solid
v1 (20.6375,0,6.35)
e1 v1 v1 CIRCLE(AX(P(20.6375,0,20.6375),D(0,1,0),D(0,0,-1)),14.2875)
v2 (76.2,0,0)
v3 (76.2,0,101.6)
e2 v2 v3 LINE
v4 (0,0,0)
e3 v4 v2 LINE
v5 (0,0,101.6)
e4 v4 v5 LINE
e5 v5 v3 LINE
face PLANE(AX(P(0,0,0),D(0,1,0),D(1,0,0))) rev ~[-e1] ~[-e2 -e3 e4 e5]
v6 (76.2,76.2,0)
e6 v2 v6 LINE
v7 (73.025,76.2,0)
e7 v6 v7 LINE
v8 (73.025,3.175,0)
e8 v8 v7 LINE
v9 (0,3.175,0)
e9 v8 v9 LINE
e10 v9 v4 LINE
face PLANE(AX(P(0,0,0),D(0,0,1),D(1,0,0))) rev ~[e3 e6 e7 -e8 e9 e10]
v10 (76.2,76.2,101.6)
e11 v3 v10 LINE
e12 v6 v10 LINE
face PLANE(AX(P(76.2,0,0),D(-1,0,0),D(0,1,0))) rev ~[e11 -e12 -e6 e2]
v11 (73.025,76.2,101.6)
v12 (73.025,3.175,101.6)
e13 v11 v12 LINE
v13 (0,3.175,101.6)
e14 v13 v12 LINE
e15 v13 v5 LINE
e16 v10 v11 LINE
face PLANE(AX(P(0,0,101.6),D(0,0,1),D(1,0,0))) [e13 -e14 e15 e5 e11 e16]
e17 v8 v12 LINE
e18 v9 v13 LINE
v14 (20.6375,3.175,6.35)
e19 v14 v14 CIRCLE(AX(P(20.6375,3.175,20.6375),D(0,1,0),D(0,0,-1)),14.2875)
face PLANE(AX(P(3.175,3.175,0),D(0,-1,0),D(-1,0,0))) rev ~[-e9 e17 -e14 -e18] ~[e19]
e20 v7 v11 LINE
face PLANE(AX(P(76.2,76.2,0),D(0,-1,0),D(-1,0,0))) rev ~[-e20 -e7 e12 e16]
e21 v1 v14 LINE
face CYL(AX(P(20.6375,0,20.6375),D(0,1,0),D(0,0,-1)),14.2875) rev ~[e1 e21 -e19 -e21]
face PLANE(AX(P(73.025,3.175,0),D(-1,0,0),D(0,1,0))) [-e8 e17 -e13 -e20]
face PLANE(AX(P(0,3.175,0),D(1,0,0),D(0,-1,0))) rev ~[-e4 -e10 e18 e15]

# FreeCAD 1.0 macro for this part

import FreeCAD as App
import Part
import Sketcher

V = App.Vector
Q = App.Units.Quantity

doc = App.newDocument("Part")
body = doc.addObject("PartDesign::Body", "Body")

# Sketch on XY plane
sketch1 = body.newObject("Sketcher::SketchObject", "Sketch")
sketch1.AttachmentSupport = (doc.getObject("XY_Plane"), [""])
sketch1.MapMode = "FlatFace"
sketch1.addGeometry([
    Part.LineSegment(V(0, 3.175, 0), V(0, 0, 0)),  # 0
    Part.LineSegment(V(0, 0, 0), V(76.2, 0, 0)),  # 1
    Part.LineSegment(V(76.2, 0, 0), V(76.2, 76.2, 0)),  # 2
    Part.LineSegment(V(76.2, 76.2, 0), V(73.025, 76.2, 0)),  # 3
    Part.LineSegment(V(73.025, 76.2, 0), V(73.025, 3.175, 0)),  # 4
    Part.LineSegment(V(73.025, 3.175, 0), V(0, 3.175, 0)),  # 5
], False)
sketch1.addConstraint([
    Sketcher.Constraint("Coincident", 0, 2, 1, 1),
    Sketcher.Constraint("Coincident", 1, 2, 2, 1),
    Sketcher.Constraint("Coincident", 2, 2, 3, 1),
    Sketcher.Constraint("Coincident", 3, 2, 4, 1),
    Sketcher.Constraint("Coincident", 4, 2, 5, 1),
    Sketcher.Constraint("Coincident", 5, 2, 0, 1),
    Sketcher.Constraint("Vertical", 0),
    Sketcher.Constraint("Horizontal", 1),
    Sketcher.Constraint("Vertical", 2),
    Sketcher.Constraint("Horizontal", 3),
    Sketcher.Constraint("Vertical", 4),
    Sketcher.Constraint("Horizontal", 5),
    Sketcher.Constraint("Coincident", 0, 2, -1, 1),
    Sketcher.Constraint("Equal", 3, 0),
    Sketcher.Constraint("Equal", 1, 2),
    Sketcher.Constraint("DistanceX", 1, 1, 1, 2, Q("3 in")),
    Sketcher.Constraint("DistanceX", 3, 2, 3, 1, Q("0.125 in")),
])
pad1 = body.newObject("PartDesign::Pad", "Pad")
pad1.Profile = sketch1
pad1.Length = Q("4 in")

# Sketch on XZ plane
sketch2 = body.newObject("Sketcher::SketchObject", "Sketch001")
sketch2.AttachmentSupport = (doc.getObject("XZ_Plane"), [""])
sketch2.MapMode = "FlatFace"
sketch2.addGeometry(Part.Circle(V(20.6375, 20.6375, 0), V(0, 0, 1), 14.2875), False)
sketch2.addConstraint([
    Sketcher.Constraint("Diameter", 0, Q("1.125 in")),
    Sketcher.Constraint("DistanceX", -1, 1, 0, 3, Q("0.8125 in")),
    Sketcher.Constraint("DistanceY", -1, 1, 0, 3, Q("0.8125 in")),
])
doc.recompute()
hole = body.newObject("PartDesign::Hole", "Hole")
hole.Profile = sketch2
hole.ThreadType = "None"
hole.Diameter = Q("1.125 in")
hole.DepthType = "Dimension"
hole.Depth = Q("1 in")
hole.DrillPoint = "Angled"
hole.DrillPointAngle = 118

doc.recompute()
